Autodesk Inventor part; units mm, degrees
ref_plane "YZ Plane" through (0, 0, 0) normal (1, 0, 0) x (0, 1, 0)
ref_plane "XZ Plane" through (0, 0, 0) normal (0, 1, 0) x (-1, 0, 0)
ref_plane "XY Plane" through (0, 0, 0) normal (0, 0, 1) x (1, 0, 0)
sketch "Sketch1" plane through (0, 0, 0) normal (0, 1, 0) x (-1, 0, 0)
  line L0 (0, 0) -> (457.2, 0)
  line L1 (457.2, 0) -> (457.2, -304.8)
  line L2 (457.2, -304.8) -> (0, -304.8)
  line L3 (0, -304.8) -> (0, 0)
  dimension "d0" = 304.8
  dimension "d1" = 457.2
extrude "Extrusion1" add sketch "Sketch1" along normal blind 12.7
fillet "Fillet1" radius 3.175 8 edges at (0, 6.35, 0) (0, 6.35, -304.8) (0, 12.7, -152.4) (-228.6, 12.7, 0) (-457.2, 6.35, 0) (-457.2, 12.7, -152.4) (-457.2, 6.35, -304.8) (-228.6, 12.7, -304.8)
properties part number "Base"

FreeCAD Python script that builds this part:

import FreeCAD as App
import Part
import Sketcher

V = App.Vector
Q = App.Units.Quantity


def edges_at(feature, points):
    """Names of the edges that pass closest to the given points."""
    edges = feature.Shape.Edges
    near = lambda p: min(range(len(edges)), key=lambda i: edges[i].distToShape(Part.Vertex(*p))[0])
    return sorted({f"Edge{near(p) + 1}" for p in points})


def add_polygon(sketch, points):
    """Adds a closed chain of lines whose ends are joined by coincident constraints."""
    first, n = sketch.GeometryCount, len(points)
    for a, b in zip(points, points[1:] + points[:1]):
        sketch.addGeometry(Part.LineSegment(App.Vector(*a, 0), App.Vector(*b, 0)), False)
    for i in range(n):
        sketch.addConstraint(Sketcher.Constraint("Coincident", first + i, 2, first + (i + 1) % n, 1))

doc = App.newDocument("Part")
params = doc.addObject("Spreadsheet::Sheet", "Params")
for row, (alias, value) in enumerate([
    ("sketch1_width", "18 in"),
    ("sketch1_height", "12 in"),
    ("pad1_length", "0.5 in"),
    ("fillet_radius", "0.125 in"),
], start=1):
    params.set(f"A{row}", alias)
    params.set(f"B{row}", "=" + value)
    params.setAlias(f"B{row}", alias)

body = doc.addObject("PartDesign::Body", "Body")

sketch1 = doc.addObject("Sketcher::SketchObject", "Sketch")
body.addObject(sketch1)
sketch1.AttachmentSupport = (doc.XZ_Plane, [""])
sketch1.MapMode = "FlatFace"
add_polygon(sketch1, [(-457.2, 0), (0, 0), (0, -304.8), (-457.2, -304.8)])
sketch1.addConstraint(Sketcher.Constraint("Horizontal", 0))
sketch1.addConstraint(Sketcher.Constraint("Vertical", 1))
sketch1.addConstraint(Sketcher.Constraint("Horizontal", 2))
sketch1.addConstraint(Sketcher.Constraint("Vertical", 3))
sketch1.addConstraint(Sketcher.Constraint("Coincident", 0, 2, -1, 1))
sketch1.addConstraint(Sketcher.Constraint("DistanceX", 0, 1, 0, 2, Q("18 in")))
sketch1.addConstraint(Sketcher.Constraint("DistanceY", 1, 2, 1, 1, Q("12 in")))
sketch1.setExpression("Constraints[9]", "Params.sketch1_width")
sketch1.setExpression("Constraints[10]", "Params.sketch1_height")
pad1 = doc.addObject("PartDesign::Pad", "Pad")
body.addObject(pad1)
pad1.Profile = sketch1
pad1.setExpression("Length", "Params.pad1_length")
pad1.Reversed = True
doc.recompute()

fillet = doc.addObject("PartDesign::Fillet", "Fillet")
body.addObject(fillet)
fillet.Base = (pad1, edges_at(pad1, [
    (0, 6.35, 0),
    (0, 6.35, -304.8),
    (0, 12.7, -152.4),
    (-228.6, 12.7, 0),
    (-457.2, 6.35, 0),
    (-457.2, 12.7, -152.4),
    (-457.2, 6.35, -304.8),
    (-228.6, 12.7, -304.8),
]))
fillet.setExpression("Radius", "Params.fillet_radius")

doc.recompute()
